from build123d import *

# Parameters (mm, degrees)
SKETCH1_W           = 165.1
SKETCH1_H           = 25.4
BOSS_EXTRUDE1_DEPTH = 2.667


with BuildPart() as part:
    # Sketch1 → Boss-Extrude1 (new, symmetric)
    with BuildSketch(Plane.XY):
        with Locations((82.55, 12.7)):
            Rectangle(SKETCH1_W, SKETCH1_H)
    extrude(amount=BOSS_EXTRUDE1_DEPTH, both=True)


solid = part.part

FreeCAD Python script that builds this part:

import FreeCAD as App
import Part
import Sketcher
from FreeCAD import Vector
Q = App.Units.Quantity

doc = App.newDocument("Part")
body = doc.addObject("PartDesign::Body", "Body")

# Sketch on XY plane
sketch1 = doc.addObject("Sketcher::SketchObject", "Sketch")
body.addObject(sketch1)
sketch1.AttachmentSupport = (doc.XY_Plane, [""])
sketch1.MapMode = "FlatFace"
sketch1.addGeometry(Part.LineSegment(Vector(0, 25.4, 0), Vector(0, 0, 0)), False)
sketch1.addGeometry(Part.LineSegment(Vector(0, 0, 0), Vector(165.1, 0, 0)), False)
sketch1.addGeometry(Part.LineSegment(Vector(165.1, 0, 0), Vector(165.1, 25.4, 0)), False)
sketch1.addGeometry(Part.LineSegment(Vector(165.1, 25.4, 0), Vector(0, 25.4, 0)), False)
sketch1.addConstraint(Sketcher.Constraint("Coincident", 0, 2, 1, 1))
sketch1.addConstraint(Sketcher.Constraint("Coincident", 1, 2, 2, 1))
sketch1.addConstraint(Sketcher.Constraint("Coincident", 2, 2, 3, 1))
sketch1.addConstraint(Sketcher.Constraint("Coincident", 3, 2, 0, 1))
sketch1.addConstraint(Sketcher.Constraint("Vertical", 0))
sketch1.addConstraint(Sketcher.Constraint("Horizontal", 1))
sketch1.addConstraint(Sketcher.Constraint("Vertical", 2))
sketch1.addConstraint(Sketcher.Constraint("Horizontal", 3))
sketch1.addConstraint(Sketcher.Constraint("Coincident", 0, 2, -1, 1))
sketch1.addConstraint(Sketcher.Constraint("DistanceY", 0, 2, 0, 1, Q("1 in")))
sketch1.addConstraint(Sketcher.Constraint("DistanceX", 1, 1, 1, 2, Q("6.5 in")))
pad1 = doc.addObject("PartDesign::Pad", "Pad")
body.addObject(pad1)
pad1.Profile = sketch1
pad1.Length = Q("0.21 in")
pad1.Midplane = True

doc.recompute()
